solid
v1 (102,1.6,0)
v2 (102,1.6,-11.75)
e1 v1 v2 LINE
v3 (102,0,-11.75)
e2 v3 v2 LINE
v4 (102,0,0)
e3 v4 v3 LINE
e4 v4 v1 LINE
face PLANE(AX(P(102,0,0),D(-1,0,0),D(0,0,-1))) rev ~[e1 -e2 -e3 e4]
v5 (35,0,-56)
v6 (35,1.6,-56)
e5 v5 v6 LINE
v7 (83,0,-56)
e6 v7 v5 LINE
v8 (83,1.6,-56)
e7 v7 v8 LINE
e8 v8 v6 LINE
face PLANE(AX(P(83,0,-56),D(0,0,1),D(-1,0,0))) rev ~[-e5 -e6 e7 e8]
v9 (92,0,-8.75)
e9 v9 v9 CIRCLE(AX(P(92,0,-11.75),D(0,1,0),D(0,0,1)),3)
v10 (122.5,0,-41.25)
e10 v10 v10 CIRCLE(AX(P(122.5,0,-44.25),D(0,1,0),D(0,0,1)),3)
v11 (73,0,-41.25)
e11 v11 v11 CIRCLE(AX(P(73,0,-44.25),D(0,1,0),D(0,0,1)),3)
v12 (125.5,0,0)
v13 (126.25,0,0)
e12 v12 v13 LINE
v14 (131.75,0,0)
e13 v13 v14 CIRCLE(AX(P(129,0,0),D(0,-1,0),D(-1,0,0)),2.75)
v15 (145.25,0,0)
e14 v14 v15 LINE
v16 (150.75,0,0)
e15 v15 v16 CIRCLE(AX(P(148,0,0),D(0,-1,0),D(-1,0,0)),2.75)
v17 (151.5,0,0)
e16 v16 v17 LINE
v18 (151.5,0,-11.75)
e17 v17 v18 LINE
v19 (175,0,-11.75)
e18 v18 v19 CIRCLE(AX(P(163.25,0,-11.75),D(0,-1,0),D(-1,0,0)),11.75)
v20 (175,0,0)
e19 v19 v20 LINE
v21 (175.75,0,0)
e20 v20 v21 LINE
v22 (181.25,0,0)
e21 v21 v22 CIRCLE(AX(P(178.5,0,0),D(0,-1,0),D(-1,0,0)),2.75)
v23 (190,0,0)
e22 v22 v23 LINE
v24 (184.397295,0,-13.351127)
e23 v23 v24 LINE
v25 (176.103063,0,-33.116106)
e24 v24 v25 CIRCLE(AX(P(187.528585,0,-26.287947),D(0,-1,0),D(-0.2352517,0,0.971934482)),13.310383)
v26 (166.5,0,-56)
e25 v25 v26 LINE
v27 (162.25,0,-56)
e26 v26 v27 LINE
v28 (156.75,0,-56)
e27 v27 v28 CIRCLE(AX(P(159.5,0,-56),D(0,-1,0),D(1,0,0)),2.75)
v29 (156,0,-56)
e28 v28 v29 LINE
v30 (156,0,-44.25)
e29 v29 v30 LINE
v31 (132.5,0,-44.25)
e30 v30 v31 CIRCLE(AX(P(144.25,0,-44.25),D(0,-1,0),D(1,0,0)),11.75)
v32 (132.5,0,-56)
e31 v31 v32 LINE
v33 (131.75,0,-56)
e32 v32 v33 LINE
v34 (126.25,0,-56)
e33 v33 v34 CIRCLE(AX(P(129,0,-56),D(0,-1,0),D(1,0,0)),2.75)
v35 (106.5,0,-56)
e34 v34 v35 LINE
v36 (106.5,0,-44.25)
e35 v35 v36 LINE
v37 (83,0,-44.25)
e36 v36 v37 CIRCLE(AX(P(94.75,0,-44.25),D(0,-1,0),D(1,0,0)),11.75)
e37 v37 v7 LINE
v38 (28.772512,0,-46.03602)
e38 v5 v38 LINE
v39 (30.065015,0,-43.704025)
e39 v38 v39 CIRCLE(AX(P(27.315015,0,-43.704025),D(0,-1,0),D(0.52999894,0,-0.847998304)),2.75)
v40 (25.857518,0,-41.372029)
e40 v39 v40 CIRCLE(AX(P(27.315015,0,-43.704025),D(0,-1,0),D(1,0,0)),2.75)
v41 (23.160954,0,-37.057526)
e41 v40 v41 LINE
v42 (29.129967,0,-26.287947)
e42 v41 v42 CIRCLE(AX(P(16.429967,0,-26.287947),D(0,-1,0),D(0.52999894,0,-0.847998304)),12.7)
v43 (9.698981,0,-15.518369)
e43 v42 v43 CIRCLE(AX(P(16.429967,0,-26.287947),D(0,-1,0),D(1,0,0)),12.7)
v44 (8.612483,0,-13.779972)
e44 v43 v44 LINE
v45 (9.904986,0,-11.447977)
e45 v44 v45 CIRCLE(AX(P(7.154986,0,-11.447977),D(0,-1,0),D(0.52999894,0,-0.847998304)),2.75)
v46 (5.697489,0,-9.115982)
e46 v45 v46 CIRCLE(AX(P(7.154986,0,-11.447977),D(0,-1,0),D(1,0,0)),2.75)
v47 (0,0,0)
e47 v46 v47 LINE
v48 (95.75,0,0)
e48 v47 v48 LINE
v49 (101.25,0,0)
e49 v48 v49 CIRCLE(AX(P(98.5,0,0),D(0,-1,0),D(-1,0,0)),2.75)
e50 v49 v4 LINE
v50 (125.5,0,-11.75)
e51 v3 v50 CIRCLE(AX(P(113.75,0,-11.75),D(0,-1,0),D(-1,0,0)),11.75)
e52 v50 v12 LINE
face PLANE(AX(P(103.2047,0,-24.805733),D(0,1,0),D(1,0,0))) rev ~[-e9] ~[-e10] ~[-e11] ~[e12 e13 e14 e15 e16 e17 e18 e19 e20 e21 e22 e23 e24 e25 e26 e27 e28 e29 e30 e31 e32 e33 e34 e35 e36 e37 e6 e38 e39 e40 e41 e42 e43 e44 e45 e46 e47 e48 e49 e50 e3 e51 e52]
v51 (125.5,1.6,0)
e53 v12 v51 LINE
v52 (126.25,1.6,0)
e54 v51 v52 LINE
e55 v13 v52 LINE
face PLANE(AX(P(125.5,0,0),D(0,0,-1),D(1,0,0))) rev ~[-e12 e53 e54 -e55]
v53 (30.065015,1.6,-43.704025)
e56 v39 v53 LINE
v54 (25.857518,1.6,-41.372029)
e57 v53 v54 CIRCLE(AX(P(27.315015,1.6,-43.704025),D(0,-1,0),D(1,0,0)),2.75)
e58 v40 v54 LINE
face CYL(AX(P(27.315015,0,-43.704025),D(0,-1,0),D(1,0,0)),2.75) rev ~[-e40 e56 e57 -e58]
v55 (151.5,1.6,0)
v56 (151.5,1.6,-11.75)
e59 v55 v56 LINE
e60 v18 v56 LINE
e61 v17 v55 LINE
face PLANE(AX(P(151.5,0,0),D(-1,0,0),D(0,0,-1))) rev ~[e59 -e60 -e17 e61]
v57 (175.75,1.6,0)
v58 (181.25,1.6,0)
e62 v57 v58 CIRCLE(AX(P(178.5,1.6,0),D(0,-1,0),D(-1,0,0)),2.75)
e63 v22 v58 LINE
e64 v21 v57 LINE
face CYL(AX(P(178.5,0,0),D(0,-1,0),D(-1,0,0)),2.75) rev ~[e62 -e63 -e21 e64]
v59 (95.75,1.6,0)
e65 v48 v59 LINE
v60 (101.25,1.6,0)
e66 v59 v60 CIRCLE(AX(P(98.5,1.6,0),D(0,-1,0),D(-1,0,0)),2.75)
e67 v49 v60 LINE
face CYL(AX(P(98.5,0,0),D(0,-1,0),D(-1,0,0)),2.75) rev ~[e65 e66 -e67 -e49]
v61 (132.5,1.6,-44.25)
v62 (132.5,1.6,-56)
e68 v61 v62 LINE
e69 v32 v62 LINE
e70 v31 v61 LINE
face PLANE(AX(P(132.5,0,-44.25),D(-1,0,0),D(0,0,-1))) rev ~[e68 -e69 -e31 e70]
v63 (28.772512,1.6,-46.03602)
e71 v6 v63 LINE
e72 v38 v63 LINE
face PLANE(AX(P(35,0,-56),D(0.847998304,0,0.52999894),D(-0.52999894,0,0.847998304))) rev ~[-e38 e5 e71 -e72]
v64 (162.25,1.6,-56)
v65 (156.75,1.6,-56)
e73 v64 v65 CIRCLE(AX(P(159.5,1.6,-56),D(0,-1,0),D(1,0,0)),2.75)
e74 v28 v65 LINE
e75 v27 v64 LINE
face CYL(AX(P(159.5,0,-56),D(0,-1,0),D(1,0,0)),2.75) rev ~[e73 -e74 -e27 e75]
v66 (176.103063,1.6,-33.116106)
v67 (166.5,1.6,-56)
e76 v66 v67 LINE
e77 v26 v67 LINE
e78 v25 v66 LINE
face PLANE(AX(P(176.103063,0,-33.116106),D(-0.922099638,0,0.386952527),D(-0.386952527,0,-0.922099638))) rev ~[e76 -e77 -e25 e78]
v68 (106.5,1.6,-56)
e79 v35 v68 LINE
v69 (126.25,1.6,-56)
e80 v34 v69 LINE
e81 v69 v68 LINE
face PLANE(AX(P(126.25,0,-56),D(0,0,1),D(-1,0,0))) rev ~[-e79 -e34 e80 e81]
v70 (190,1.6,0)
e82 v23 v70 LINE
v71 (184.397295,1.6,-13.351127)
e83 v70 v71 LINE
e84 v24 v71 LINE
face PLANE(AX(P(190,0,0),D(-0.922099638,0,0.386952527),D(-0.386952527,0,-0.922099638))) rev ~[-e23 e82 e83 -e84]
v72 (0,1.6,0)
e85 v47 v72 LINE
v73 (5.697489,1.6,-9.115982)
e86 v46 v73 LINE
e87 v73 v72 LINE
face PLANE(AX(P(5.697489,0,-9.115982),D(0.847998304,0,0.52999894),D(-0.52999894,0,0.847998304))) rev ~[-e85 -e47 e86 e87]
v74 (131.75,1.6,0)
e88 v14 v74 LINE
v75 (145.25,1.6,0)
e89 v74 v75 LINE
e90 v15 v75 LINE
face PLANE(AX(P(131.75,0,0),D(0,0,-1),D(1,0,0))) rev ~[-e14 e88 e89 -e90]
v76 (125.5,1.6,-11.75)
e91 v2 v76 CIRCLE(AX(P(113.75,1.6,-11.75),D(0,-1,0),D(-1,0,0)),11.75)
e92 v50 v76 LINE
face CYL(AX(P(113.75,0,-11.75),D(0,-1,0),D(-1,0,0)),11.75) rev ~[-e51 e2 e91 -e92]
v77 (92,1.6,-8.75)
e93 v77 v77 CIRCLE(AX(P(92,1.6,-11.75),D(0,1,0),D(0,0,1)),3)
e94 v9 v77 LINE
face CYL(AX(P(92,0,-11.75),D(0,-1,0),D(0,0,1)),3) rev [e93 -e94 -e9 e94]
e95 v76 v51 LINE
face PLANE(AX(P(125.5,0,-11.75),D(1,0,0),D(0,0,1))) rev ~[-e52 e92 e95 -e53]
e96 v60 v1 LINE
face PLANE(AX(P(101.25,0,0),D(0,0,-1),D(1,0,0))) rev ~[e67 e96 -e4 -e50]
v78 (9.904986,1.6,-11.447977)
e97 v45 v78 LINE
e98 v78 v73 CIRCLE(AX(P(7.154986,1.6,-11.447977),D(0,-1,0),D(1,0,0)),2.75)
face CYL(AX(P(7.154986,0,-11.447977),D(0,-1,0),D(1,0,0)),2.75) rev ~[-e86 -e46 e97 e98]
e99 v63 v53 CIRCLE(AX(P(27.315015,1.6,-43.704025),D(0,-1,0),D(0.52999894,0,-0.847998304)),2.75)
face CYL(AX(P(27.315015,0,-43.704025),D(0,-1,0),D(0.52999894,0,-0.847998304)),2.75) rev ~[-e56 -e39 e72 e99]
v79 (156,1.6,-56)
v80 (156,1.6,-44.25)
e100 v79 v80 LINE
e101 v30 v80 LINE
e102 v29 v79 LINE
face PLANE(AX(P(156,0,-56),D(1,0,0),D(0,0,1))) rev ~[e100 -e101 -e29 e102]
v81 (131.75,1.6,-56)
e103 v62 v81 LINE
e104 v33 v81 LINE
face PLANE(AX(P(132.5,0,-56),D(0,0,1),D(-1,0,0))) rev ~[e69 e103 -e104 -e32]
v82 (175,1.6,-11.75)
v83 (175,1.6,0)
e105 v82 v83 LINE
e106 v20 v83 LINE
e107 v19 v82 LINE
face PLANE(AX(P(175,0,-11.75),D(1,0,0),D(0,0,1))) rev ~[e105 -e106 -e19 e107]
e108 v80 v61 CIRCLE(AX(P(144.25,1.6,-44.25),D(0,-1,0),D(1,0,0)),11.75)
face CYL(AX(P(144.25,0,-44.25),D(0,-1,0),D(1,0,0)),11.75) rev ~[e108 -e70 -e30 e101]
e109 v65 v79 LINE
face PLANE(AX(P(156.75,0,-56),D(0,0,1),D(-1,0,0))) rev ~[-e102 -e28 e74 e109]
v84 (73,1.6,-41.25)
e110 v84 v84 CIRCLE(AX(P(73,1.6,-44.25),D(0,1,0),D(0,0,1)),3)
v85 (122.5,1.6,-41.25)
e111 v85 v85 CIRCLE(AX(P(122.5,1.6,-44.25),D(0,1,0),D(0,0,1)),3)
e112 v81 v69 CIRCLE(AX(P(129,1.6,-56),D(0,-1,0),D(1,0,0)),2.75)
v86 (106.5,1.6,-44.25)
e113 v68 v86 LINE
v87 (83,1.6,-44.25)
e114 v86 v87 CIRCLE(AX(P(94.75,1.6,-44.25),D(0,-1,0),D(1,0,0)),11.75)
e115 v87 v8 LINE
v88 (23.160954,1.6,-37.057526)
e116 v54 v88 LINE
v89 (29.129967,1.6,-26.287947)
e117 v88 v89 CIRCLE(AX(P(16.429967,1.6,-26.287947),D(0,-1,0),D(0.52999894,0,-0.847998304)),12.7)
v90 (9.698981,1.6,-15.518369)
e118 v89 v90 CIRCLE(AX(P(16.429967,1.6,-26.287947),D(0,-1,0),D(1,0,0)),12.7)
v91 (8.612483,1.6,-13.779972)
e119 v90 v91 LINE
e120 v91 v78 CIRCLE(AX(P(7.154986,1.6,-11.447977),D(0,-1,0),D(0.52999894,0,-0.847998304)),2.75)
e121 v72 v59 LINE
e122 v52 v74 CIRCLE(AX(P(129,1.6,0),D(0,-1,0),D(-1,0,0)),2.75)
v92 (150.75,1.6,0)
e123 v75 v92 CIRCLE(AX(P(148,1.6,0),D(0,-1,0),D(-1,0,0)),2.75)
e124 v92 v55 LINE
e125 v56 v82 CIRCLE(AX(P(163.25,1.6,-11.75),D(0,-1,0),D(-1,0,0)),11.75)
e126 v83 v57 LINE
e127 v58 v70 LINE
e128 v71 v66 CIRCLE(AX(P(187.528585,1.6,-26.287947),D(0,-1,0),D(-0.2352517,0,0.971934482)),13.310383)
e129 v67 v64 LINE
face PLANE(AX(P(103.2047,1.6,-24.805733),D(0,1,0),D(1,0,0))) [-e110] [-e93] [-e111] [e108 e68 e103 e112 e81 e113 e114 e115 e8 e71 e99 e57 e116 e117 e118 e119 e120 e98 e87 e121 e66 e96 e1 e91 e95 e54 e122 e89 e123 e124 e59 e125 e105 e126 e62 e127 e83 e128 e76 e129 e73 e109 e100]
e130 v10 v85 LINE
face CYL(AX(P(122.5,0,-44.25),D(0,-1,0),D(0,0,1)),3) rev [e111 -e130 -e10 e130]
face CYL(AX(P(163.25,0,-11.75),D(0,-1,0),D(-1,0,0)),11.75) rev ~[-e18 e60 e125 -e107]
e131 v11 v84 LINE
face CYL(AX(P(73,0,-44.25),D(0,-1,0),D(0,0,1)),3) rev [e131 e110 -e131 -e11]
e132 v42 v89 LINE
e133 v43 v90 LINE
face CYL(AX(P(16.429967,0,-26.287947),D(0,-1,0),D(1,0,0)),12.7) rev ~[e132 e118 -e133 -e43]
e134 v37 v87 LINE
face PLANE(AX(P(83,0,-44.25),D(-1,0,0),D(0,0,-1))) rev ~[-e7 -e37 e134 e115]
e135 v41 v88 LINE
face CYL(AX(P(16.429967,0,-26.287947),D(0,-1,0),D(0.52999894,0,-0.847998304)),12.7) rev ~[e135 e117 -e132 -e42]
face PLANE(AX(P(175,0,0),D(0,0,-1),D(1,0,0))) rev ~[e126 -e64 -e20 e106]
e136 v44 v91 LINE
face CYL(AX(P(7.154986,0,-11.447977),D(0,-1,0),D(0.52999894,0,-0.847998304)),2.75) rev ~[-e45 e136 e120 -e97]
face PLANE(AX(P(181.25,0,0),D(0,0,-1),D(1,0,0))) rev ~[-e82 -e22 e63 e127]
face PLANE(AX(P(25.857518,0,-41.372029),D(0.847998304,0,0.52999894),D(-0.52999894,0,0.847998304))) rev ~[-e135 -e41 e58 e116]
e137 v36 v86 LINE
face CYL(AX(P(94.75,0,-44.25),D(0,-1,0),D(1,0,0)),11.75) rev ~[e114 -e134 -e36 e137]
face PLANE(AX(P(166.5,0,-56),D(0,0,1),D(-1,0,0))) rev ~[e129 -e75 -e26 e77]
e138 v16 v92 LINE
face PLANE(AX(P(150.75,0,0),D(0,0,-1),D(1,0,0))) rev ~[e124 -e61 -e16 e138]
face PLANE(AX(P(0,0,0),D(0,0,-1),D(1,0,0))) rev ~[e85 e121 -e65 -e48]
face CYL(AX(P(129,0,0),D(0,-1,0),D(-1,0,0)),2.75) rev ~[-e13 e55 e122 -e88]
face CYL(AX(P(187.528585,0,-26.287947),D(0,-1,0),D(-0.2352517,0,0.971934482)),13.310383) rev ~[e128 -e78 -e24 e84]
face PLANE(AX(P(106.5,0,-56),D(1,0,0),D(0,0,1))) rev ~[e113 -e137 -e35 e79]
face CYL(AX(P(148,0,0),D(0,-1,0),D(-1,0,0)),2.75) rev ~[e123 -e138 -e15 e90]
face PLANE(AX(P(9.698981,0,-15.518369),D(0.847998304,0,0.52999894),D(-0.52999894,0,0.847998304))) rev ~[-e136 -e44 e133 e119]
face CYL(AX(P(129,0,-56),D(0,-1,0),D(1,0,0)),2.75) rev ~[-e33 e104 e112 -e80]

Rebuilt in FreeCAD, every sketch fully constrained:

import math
import FreeCAD as App
import Part
import Sketcher

V = App.Vector

doc = App.newDocument("Part")
body = doc.addObject("PartDesign::Body", "Body")

# Sketch on XZ plane
sketch1 = body.newObject("Sketcher::SketchObject", "Sketch")
sketch1.AttachmentSupport = (doc.getObject("XZ_Plane"), [""])
sketch1.MapMode = "FlatFace"
sketch1.addGeometry([
    Part.ArcOfCircle(Part.Circle(V(98.5, 0, 0), V(0, 0, 1), 2.8), math.radians(180), math.radians(360)),  # 0
    Part.LineSegment(V(101.2, 0, 0), V(102, 0, 0)),  # 1
    Part.LineSegment(V(102, 0, 0), V(102, -11.8, 0)),  # 2
    Part.ArcOfCircle(Part.Circle(V(113.8, -11.8, 0), V(0, 0, 1), 11.8), math.radians(180), math.radians(360)),  # 3
    Part.LineSegment(V(125.5, -11.8, 0), V(125.5, 0, 0)),  # 4
    Part.LineSegment(V(125.5, 0, 0), V(126.2, 0, 0)),  # 5
    Part.ArcOfCircle(Part.Circle(V(129, 0, 0), V(0, 0, 1), 2.8), math.radians(180), math.radians(360)),  # 6
    Part.LineSegment(V(131.8, 0, 0), V(145.2, 0, 0)),  # 7
    Part.ArcOfCircle(Part.Circle(V(148, 0, 0), V(0, 0, 1), 2.8), math.radians(180), math.radians(360)),  # 8
    Part.LineSegment(V(150.8, 0, 0), V(151.5, 0, 0)),  # 9
    Part.LineSegment(V(151.5, 0, 0), V(151.5, -11.8, 0)),  # 10
    Part.ArcOfCircle(Part.Circle(V(163.2, -11.8, 0), V(0, 0, 1), 11.8), math.radians(180), math.radians(360)),  # 11
    Part.LineSegment(V(175, -11.8, 0), V(175, 0, 0)),  # 12
    Part.LineSegment(V(175, 0, 0), V(175.8, 0, 0)),  # 13
    Part.ArcOfCircle(Part.Circle(V(178.5, 0, 0), V(0, 0, 1), 2.8), math.radians(180), math.radians(360)),  # 14
    Part.LineSegment(V(181.2, 0, 0), V(190, 0, 0)),  # 15
    Part.LineSegment(V(190, 0, 0), V(184.4, -13.4, 0)),  # 16
    Part.ArcOfCircle(Part.Circle(V(187.5, -26.3, 0), V(0, 0, 1), 13.3), math.radians(104), math.radians(211)),  # 17
    Part.LineSegment(V(176.1, -33.1, 0), V(166.5, -56, 0)),  # 18
    Part.LineSegment(V(166.5, -56, 0), V(162.2, -56, 0)),  # 19
    Part.ArcOfCircle(Part.Circle(V(159.5, -56, 0), V(0, 0, 1), 2.8), math.radians(0), math.radians(180)),  # 20
    Part.LineSegment(V(156.8, -56, 0), V(156, -56, 0)),  # 21
    Part.LineSegment(V(156, -56, 0), V(156, -44.2, 0)),  # 22
    Part.ArcOfCircle(Part.Circle(V(144.2, -44.2, 0), V(0, 0, 1), 11.8), math.radians(0), math.radians(180)),  # 23
    Part.LineSegment(V(132.5, -44.2, 0), V(132.5, -56, 0)),  # 24
    Part.LineSegment(V(132.5, -56, 0), V(131.8, -56, 0)),  # 25
    Part.ArcOfCircle(Part.Circle(V(129, -56, 0), V(0, 0, 1), 2.8), math.radians(0), math.radians(180)),  # 26
    Part.LineSegment(V(126.2, -56, 0), V(106.5, -56, 0)),  # 27
    Part.LineSegment(V(106.5, -56, 0), V(106.5, -44.2, 0)),  # 28
    Part.ArcOfCircle(Part.Circle(V(94.8, -44.2, 0), V(0, 0, 1), 11.8), math.radians(0), math.radians(180)),  # 29
    Part.LineSegment(V(83, -44.2, 0), V(83, -56, 0)),  # 30
    Part.LineSegment(V(83, -56, 0), V(35, -56, 0)),  # 31
    Part.LineSegment(V(35, -56, 0), V(28.8, -46, 0)),  # 32
    Part.ArcOfCircle(Part.Circle(V(27.3, -43.7, 0), V(0, 0, 1), 2.8), math.radians(-58), math.radians(0)),  # 33
    Part.ArcOfCircle(Part.Circle(V(27.3, -43.7, 0), V(0, 0, 1), 2.8), math.radians(0), math.radians(122)),  # 34
    Part.LineSegment(V(25.9, -41.4, 0), V(23.2, -37.1, 0)),  # 35
    Part.ArcOfCircle(Part.Circle(V(16.4, -26.3, 0), V(0, 0, 1), 12.7), math.radians(-58), math.radians(0)),  # 36
    Part.ArcOfCircle(Part.Circle(V(16.4, -26.3, 0), V(0, 0, 1), 12.7), math.radians(0), math.radians(122)),  # 37
    Part.LineSegment(V(9.7, -15.5, 0), V(8.6, -13.8, 0)),  # 38
    Part.ArcOfCircle(Part.Circle(V(7.2, -11.4, 0), V(0, 0, 1), 2.8), math.radians(-58), math.radians(0)),  # 39
    Part.ArcOfCircle(Part.Circle(V(7.2, -11.4, 0), V(0, 0, 1), 2.8), math.radians(0), math.radians(122)),  # 40
    Part.LineSegment(V(5.7, -9.1, 0), V(0, 0, 0)),  # 41
    Part.LineSegment(V(0, 0, 0), V(95.8, 0, 0)),  # 42
    Part.Circle(V(92, -11.8, 0), V(0, 0, 1), 3),  # 43
    Part.Circle(V(73, -44.2, 0), V(0, 0, 1), 3),  # 44
    Part.Circle(V(122.5, -44.2, 0), V(0, 0, 1), 3),  # 45
], False)
sketch1.addConstraint([
    Sketcher.Constraint("Coincident", 0, 2, 1, 1),
    Sketcher.Constraint("Coincident", 1, 2, 2, 1),
    Sketcher.Constraint("Tangent", 2, 2, 3, 1),
    Sketcher.Constraint("Tangent", 3, 2, 4, 1),
    Sketcher.Constraint("Coincident", 4, 2, 5, 1),
    Sketcher.Constraint("Coincident", 5, 2, 6, 1),
    Sketcher.Constraint("Coincident", 6, 2, 7, 1),
    Sketcher.Constraint("Coincident", 7, 2, 8, 1),
    Sketcher.Constraint("Coincident", 8, 2, 9, 1),
    Sketcher.Constraint("Coincident", 9, 2, 10, 1),
    Sketcher.Constraint("Tangent", 10, 2, 11, 1),
    Sketcher.Constraint("Tangent", 11, 2, 12, 1),
    Sketcher.Constraint("Coincident", 12, 2, 13, 1),
    Sketcher.Constraint("Coincident", 13, 2, 14, 1),
    Sketcher.Constraint("Coincident", 14, 2, 15, 1),
    Sketcher.Constraint("Coincident", 15, 2, 16, 1),
    Sketcher.Constraint("Coincident", 16, 2, 17, 1),
    Sketcher.Constraint("Coincident", 17, 2, 18, 1),
    Sketcher.Constraint("Coincident", 18, 2, 19, 1),
    Sketcher.Constraint("Coincident", 19, 2, 20, 1),
    Sketcher.Constraint("Coincident", 20, 2, 21, 1),
    Sketcher.Constraint("Coincident", 21, 2, 22, 1),
    Sketcher.Constraint("Tangent", 22, 2, 23, 1),
    Sketcher.Constraint("Tangent", 23, 2, 24, 1),
    Sketcher.Constraint("Coincident", 24, 2, 25, 1),
    Sketcher.Constraint("Coincident", 25, 2, 26, 1),
    Sketcher.Constraint("Coincident", 26, 2, 27, 1),
    Sketcher.Constraint("Coincident", 27, 2, 28, 1),
    Sketcher.Constraint("Tangent", 28, 2, 29, 1),
    Sketcher.Constraint("Tangent", 29, 2, 30, 1),
    Sketcher.Constraint("Coincident", 30, 2, 31, 1),
    Sketcher.Constraint("Coincident", 31, 2, 32, 1),
    Sketcher.Constraint("Coincident", 32, 2, 33, 1),
    Sketcher.Constraint("Tangent", 33, 2, 34, 1),
    Sketcher.Constraint("Coincident", 34, 2, 35, 1),
    Sketcher.Constraint("Coincident", 35, 2, 36, 1),
    Sketcher.Constraint("Tangent", 36, 2, 37, 1),
    Sketcher.Constraint("Coincident", 37, 2, 38, 1),
    Sketcher.Constraint("Coincident", 38, 2, 39, 1),
    Sketcher.Constraint("Tangent", 39, 2, 40, 1),
    Sketcher.Constraint("Coincident", 40, 2, 41, 1),
    Sketcher.Constraint("Coincident", 41, 2, 42, 1),
    Sketcher.Constraint("Coincident", 42, 2, 0, 1),
    Sketcher.Constraint("Horizontal", 1),
    Sketcher.Constraint("Vertical", 2),
    Sketcher.Constraint("Vertical", 4),
    Sketcher.Constraint("Horizontal", 5),
    Sketcher.Constraint("Horizontal", 7),
    Sketcher.Constraint("Horizontal", 9),
    Sketcher.Constraint("Vertical", 10),
    Sketcher.Constraint("Vertical", 12),
    Sketcher.Constraint("Horizontal", 13),
    Sketcher.Constraint("Horizontal", 15),
    Sketcher.Constraint("Horizontal", 19),
    Sketcher.Constraint("Horizontal", 21),
    Sketcher.Constraint("Vertical", 22),
    Sketcher.Constraint("Vertical", 24),
    Sketcher.Constraint("Horizontal", 25),
    Sketcher.Constraint("Horizontal", 27),
    Sketcher.Constraint("Vertical", 28),
    Sketcher.Constraint("Vertical", 30),
    Sketcher.Constraint("Horizontal", 31),
    Sketcher.Constraint("Horizontal", 42),
    Sketcher.Constraint("Coincident", 41, 2, -1, 1),
    Sketcher.Constraint("Equal", 0, 6),
    Sketcher.Constraint("Equal", 6, 8),
    Sketcher.Constraint("Equal", 3, 11),
    Sketcher.Constraint("Equal", 8, 14),
    Sketcher.Constraint("Equal", 14, 20),
    Sketcher.Constraint("Equal", 11, 23),
    Sketcher.Constraint("Equal", 20, 26),
    Sketcher.Constraint("Equal", 23, 29),
    Sketcher.Constraint("Equal", 26, 33),
    Sketcher.Constraint("Equal", 33, 34),
    Sketcher.Constraint("Equal", 36, 37),
    Sketcher.Constraint("Equal", 34, 39),
    Sketcher.Constraint("Equal", 39, 40),
    Sketcher.Constraint("Equal", 43, 44),
    Sketcher.Constraint("Equal", 44, 45),
    Sketcher.Constraint("PointOnObject", 0, 3, -1),
    Sketcher.Constraint("PointOnObject", 6, 3, -1),
    Sketcher.Constraint("PointOnObject", 8, 3, -1),
    Sketcher.Constraint("PointOnObject", 14, 3, -1),
    Sketcher.Constraint("PointOnObject", 0, 2, -1),
    Sketcher.Constraint("PointOnObject", 4, 2, -1),
    Sketcher.Constraint("PointOnObject", 6, 2, -1),
    Sketcher.Constraint("PointOnObject", 8, 2, -1),
    Sketcher.Constraint("PointOnObject", 12, 2, -1),
    Sketcher.Constraint("PointOnObject", 14, 2, -1),
    Sketcher.Constraint("Parallel", 16, 18),
    Sketcher.Constraint("Parallel", 32, 35),
    Sketcher.Constraint("Parallel", 35, 38),
    Sketcher.Constraint("Parallel", 38, 41),
    Sketcher.Constraint("Horizontal", 3, 3, 11, 3),
    Sketcher.Constraint("Horizontal", 20, 3, 26, 3),
    Sketcher.Constraint("Horizontal", 23, 3, 29, 3),
    Sketcher.Constraint("Horizontal", 17, 3, 36, 3),
    Sketcher.Constraint("Horizontal", 11, 3, 43, 3),
    Sketcher.Constraint("Horizontal", 29, 3, 44, 3),
    Sketcher.Constraint("Horizontal", 44, 3, 45, 3),
    Sketcher.Constraint("Horizontal", 26, 3, 18, 2),
    Sketcher.Constraint("Horizontal", 19, 2, 20, 2),
    Sketcher.Constraint("Horizontal", 21, 2, 24, 2),
    Sketcher.Constraint("Horizontal", 25, 2, 26, 2),
    Sketcher.Constraint("Horizontal", 27, 2, 30, 2),
    Sketcher.Constraint("Horizontal", 34, 3, 33, 2),
    Sketcher.Constraint("Horizontal", 37, 3, 36, 2),
    Sketcher.Constraint("Horizontal", 40, 3, 39, 2),
    Sketcher.Constraint("Vertical", 6, 3, 26, 3),
    Sketcher.Constraint("Equal", 1, 5),
    Sketcher.Constraint("Equal", 5, 9),
    Sketcher.Constraint("Equal", 9, 13),
    Sketcher.Constraint("Equal", 13, 21),
    Sketcher.Constraint("Equal", 21, 25),
    Sketcher.Constraint("Equal", 12, 22),
    Sketcher.Constraint("Diameter", 43, 6.0),
    Sketcher.Constraint("Radius", 36, 12.7),
    Sketcher.Constraint("DistanceX", 31, 2, 31, 1, 48.0),
    Sketcher.Constraint("Radius", 0, 2.75),
    Sketcher.Constraint("Radius", 3, 11.75),
    Sketcher.Constraint("DistanceX", 7, 1, 7, 2, 13.5),
    Sketcher.Constraint("DistanceX", -1, 1, 6, 3, 129.0),
    Sketcher.Constraint("DistanceY", 20, 3, -1, 1, 56.0),
    Sketcher.Constraint("DistanceX", -1, 1, 43, 3, 92.0),
    Sketcher.Constraint("DistanceX", -1, 1, 44, 3, 73.0),
    Sketcher.Constraint("DistanceX", -1, 1, 1, 2, 102.0),
    Sketcher.Constraint("DistanceX", -1, 1, 15, 2, 190.0),
    Sketcher.Constraint("DistanceX", -1, 1, 29, 2, 83.0),
    Sketcher.Constraint("DistanceX", 19, 2, 19, 1, 4.25),
    Sketcher.Constraint("DistanceY", 2, 2, 2, 1, 11.75),
    Sketcher.Constraint("DistanceX", -1, 1, 45, 3, 122.5),
    Sketcher.Constraint("Distance", 32, 11.75),
    Sketcher.Constraint("Distance", 38, 2.05),
    Sketcher.Constraint("Distance", 41, 10.75),
    Sketcher.Constraint("Radius", 17, 13.310383),
    Sketcher.Constraint("Distance", 16, 14.47905),
    Sketcher.Constraint("Distance", 18, 24.81716),
    Sketcher.Constraint("DistanceY", 32, 2, -1, 1, 46.03602),
    Sketcher.Constraint("DistanceX", -1, 1, 34, 2, 25.857518),
    Sketcher.Constraint("DistanceX", -1, 1, 37, 2, 9.698981),
    Sketcher.Constraint("DistanceX", -1, 1, 17, 3, 187.528585),
    Sketcher.Constraint("DistanceX", -1, 1, 33, 3, 27.315015),
    Sketcher.Constraint("DistanceX", -1, 1, 39, 3, 7.154986),
])
pad1 = body.newObject("PartDesign::Pad", "Pad")
pad1.Profile = sketch1
pad1.Length = 1.6
pad1.Reversed = True

doc.recompute()
